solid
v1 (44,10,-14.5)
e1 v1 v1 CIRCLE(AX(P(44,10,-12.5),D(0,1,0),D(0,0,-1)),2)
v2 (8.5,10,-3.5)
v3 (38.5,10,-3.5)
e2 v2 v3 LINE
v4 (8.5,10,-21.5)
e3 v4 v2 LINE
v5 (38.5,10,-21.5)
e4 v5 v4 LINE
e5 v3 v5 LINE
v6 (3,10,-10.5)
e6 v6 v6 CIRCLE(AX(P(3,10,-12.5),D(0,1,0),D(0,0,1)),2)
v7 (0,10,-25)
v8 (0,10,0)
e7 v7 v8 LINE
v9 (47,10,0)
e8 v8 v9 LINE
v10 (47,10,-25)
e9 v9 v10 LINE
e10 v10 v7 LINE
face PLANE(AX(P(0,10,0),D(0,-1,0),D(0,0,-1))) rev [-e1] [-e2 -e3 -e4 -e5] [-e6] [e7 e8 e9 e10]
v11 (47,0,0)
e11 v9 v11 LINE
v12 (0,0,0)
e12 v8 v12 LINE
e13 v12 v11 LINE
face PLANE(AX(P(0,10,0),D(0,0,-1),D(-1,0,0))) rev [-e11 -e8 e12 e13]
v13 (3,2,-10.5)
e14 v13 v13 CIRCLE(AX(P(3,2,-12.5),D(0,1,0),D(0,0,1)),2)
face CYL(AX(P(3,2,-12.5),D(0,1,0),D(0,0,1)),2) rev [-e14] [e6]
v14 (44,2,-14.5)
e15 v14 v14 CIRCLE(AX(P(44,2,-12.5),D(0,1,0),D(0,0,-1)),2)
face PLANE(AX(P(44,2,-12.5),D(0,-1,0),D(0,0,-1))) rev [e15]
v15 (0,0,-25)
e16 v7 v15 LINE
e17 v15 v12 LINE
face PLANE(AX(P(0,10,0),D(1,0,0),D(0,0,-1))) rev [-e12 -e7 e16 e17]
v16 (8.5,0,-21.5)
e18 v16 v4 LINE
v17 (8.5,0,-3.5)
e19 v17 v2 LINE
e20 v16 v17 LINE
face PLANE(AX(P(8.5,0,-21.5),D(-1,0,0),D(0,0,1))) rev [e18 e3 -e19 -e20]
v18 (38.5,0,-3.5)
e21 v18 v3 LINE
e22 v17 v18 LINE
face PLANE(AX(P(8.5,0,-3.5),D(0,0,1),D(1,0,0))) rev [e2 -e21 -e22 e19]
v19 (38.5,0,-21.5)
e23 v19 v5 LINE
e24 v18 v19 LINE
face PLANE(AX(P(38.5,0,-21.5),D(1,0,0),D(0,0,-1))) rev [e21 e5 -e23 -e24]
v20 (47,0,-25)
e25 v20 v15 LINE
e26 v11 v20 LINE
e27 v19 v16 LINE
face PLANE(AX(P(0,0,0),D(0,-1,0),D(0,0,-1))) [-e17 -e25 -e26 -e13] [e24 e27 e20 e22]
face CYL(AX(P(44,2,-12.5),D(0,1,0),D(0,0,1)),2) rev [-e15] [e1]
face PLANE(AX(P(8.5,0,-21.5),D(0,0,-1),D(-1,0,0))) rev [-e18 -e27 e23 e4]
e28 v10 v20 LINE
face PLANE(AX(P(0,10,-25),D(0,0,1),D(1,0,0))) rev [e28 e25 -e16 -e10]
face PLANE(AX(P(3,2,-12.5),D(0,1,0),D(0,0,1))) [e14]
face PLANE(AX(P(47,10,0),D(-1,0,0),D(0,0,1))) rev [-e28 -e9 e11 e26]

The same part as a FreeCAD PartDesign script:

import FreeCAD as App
import Part
import Sketcher
from FreeCAD import Vector
Q = App.Units.Quantity


def add_polygon(sketch, points):
    """Adds a closed chain of lines whose ends are joined by coincident constraints."""
    first, n = sketch.GeometryCount, len(points)
    for a, b in zip(points, points[1:] + points[:1]):
        sketch.addGeometry(Part.LineSegment(App.Vector(*a, 0), App.Vector(*b, 0)), False)
    for i in range(n):
        sketch.addConstraint(Sketcher.Constraint("Coincident", first + i, 2, first + (i + 1) % n, 1))

doc = App.newDocument("Part")
body = doc.addObject("PartDesign::Body", "Body")

# Sketch on XZ plane
sketch1 = doc.addObject("Sketcher::SketchObject", "Sketch")
body.addObject(sketch1)
sketch1.AttachmentSupport = (doc.XZ_Plane, [""])
sketch1.MapMode = "FlatFace"
add_polygon(sketch1, [(0, -25), (0, 0), (47, 0), (47, -25)])  # lines 0-3
sketch1.addConstraint([
    Sketcher.Constraint("Vertical", 0),
    Sketcher.Constraint("Horizontal", 1),
    Sketcher.Constraint("Vertical", 2),
    Sketcher.Constraint("Horizontal", 3),
    Sketcher.Constraint("Coincident", 0, 2, -1, 1),
    Sketcher.Constraint("DistanceX", 1, 1, 1, 2, Q("47 mm")),
    Sketcher.Constraint("DistanceY", 0, 1, 0, 2, Q("25 mm")),
])
pad1 = doc.addObject("PartDesign::Pad", "Pad")
body.addObject(pad1)
pad1.Profile = sketch1
pad1.Length = 10
pad1.Reversed = True

# Sketch on XZ plane
sketch2 = doc.addObject("Sketcher::SketchObject", "Sketch001")
body.addObject(sketch2)
sketch2.AttachmentSupport = (doc.XZ_Plane, [""])
sketch2.MapMode = "FlatFace"
sketch2.AttachmentOffset = App.Placement(Vector(0, 0, -10), App.Rotation())
sketch2.addGeometry([
    Part.Circle(Vector(3, -12.5, 0), Vector(0, 0, 1), 2),
    Part.Circle(Vector(44, -12.5, 0), Vector(0, 0, 1), 2),
], False)
sketch2.addConstraint([
    Sketcher.Constraint("Equal", 0, 1),
    Sketcher.Constraint("Horizontal", 0, 3, 1, 3),
    Sketcher.Constraint("Diameter", 0, Q("4 mm")),
    Sketcher.Constraint("DistanceX", -1, 1, 0, 3, Q("3 mm")),
    Sketcher.Constraint("DistanceX", -1, 1, 1, 3, Q("44 mm")),
    Sketcher.Constraint("DistanceY", 0, 3, -1, 1, Q("12.5 mm")),
])
pocket1 = doc.addObject("PartDesign::Pocket", "Pocket")
body.addObject(pocket1)
pocket1.Profile = sketch2
pocket1.Length = 8
pocket1.Reversed = True

# Sketch on XZ plane
sketch3 = doc.addObject("Sketcher::SketchObject", "Sketch002")
body.addObject(sketch3)
sketch3.AttachmentSupport = (doc.XZ_Plane, [""])
sketch3.MapMode = "FlatFace"
sketch3.AttachmentOffset = App.Placement(Vector(0, 0, -10), App.Rotation())
add_polygon(sketch3, [(8, -22), (8, -4), (38, -4), (38, -22)])  # lines 0-3
sketch3.addConstraint([
    Sketcher.Constraint("Vertical", 0),
    Sketcher.Constraint("Horizontal", 1),
    Sketcher.Constraint("Vertical", 2),
    Sketcher.Constraint("Horizontal", 3),
    Sketcher.Constraint("DistanceX", 1, 1, 1, 2, Q("30 mm")),
    Sketcher.Constraint("DistanceY", 0, 1, 0, 2, Q("18 mm")),
    Sketcher.Constraint("DistanceX", -1, 1, 0, 2, Q("8.5 mm")),
    Sketcher.Constraint("DistanceY", 0, 2, -1, 1, Q("3.5 mm")),
])
pocket2 = doc.addObject("PartDesign::Pocket", "Pocket001")
body.addObject(pocket2)
pocket2.Profile = sketch3
pocket2.Length = 10
pocket2.Reversed = True

doc.recompute()
